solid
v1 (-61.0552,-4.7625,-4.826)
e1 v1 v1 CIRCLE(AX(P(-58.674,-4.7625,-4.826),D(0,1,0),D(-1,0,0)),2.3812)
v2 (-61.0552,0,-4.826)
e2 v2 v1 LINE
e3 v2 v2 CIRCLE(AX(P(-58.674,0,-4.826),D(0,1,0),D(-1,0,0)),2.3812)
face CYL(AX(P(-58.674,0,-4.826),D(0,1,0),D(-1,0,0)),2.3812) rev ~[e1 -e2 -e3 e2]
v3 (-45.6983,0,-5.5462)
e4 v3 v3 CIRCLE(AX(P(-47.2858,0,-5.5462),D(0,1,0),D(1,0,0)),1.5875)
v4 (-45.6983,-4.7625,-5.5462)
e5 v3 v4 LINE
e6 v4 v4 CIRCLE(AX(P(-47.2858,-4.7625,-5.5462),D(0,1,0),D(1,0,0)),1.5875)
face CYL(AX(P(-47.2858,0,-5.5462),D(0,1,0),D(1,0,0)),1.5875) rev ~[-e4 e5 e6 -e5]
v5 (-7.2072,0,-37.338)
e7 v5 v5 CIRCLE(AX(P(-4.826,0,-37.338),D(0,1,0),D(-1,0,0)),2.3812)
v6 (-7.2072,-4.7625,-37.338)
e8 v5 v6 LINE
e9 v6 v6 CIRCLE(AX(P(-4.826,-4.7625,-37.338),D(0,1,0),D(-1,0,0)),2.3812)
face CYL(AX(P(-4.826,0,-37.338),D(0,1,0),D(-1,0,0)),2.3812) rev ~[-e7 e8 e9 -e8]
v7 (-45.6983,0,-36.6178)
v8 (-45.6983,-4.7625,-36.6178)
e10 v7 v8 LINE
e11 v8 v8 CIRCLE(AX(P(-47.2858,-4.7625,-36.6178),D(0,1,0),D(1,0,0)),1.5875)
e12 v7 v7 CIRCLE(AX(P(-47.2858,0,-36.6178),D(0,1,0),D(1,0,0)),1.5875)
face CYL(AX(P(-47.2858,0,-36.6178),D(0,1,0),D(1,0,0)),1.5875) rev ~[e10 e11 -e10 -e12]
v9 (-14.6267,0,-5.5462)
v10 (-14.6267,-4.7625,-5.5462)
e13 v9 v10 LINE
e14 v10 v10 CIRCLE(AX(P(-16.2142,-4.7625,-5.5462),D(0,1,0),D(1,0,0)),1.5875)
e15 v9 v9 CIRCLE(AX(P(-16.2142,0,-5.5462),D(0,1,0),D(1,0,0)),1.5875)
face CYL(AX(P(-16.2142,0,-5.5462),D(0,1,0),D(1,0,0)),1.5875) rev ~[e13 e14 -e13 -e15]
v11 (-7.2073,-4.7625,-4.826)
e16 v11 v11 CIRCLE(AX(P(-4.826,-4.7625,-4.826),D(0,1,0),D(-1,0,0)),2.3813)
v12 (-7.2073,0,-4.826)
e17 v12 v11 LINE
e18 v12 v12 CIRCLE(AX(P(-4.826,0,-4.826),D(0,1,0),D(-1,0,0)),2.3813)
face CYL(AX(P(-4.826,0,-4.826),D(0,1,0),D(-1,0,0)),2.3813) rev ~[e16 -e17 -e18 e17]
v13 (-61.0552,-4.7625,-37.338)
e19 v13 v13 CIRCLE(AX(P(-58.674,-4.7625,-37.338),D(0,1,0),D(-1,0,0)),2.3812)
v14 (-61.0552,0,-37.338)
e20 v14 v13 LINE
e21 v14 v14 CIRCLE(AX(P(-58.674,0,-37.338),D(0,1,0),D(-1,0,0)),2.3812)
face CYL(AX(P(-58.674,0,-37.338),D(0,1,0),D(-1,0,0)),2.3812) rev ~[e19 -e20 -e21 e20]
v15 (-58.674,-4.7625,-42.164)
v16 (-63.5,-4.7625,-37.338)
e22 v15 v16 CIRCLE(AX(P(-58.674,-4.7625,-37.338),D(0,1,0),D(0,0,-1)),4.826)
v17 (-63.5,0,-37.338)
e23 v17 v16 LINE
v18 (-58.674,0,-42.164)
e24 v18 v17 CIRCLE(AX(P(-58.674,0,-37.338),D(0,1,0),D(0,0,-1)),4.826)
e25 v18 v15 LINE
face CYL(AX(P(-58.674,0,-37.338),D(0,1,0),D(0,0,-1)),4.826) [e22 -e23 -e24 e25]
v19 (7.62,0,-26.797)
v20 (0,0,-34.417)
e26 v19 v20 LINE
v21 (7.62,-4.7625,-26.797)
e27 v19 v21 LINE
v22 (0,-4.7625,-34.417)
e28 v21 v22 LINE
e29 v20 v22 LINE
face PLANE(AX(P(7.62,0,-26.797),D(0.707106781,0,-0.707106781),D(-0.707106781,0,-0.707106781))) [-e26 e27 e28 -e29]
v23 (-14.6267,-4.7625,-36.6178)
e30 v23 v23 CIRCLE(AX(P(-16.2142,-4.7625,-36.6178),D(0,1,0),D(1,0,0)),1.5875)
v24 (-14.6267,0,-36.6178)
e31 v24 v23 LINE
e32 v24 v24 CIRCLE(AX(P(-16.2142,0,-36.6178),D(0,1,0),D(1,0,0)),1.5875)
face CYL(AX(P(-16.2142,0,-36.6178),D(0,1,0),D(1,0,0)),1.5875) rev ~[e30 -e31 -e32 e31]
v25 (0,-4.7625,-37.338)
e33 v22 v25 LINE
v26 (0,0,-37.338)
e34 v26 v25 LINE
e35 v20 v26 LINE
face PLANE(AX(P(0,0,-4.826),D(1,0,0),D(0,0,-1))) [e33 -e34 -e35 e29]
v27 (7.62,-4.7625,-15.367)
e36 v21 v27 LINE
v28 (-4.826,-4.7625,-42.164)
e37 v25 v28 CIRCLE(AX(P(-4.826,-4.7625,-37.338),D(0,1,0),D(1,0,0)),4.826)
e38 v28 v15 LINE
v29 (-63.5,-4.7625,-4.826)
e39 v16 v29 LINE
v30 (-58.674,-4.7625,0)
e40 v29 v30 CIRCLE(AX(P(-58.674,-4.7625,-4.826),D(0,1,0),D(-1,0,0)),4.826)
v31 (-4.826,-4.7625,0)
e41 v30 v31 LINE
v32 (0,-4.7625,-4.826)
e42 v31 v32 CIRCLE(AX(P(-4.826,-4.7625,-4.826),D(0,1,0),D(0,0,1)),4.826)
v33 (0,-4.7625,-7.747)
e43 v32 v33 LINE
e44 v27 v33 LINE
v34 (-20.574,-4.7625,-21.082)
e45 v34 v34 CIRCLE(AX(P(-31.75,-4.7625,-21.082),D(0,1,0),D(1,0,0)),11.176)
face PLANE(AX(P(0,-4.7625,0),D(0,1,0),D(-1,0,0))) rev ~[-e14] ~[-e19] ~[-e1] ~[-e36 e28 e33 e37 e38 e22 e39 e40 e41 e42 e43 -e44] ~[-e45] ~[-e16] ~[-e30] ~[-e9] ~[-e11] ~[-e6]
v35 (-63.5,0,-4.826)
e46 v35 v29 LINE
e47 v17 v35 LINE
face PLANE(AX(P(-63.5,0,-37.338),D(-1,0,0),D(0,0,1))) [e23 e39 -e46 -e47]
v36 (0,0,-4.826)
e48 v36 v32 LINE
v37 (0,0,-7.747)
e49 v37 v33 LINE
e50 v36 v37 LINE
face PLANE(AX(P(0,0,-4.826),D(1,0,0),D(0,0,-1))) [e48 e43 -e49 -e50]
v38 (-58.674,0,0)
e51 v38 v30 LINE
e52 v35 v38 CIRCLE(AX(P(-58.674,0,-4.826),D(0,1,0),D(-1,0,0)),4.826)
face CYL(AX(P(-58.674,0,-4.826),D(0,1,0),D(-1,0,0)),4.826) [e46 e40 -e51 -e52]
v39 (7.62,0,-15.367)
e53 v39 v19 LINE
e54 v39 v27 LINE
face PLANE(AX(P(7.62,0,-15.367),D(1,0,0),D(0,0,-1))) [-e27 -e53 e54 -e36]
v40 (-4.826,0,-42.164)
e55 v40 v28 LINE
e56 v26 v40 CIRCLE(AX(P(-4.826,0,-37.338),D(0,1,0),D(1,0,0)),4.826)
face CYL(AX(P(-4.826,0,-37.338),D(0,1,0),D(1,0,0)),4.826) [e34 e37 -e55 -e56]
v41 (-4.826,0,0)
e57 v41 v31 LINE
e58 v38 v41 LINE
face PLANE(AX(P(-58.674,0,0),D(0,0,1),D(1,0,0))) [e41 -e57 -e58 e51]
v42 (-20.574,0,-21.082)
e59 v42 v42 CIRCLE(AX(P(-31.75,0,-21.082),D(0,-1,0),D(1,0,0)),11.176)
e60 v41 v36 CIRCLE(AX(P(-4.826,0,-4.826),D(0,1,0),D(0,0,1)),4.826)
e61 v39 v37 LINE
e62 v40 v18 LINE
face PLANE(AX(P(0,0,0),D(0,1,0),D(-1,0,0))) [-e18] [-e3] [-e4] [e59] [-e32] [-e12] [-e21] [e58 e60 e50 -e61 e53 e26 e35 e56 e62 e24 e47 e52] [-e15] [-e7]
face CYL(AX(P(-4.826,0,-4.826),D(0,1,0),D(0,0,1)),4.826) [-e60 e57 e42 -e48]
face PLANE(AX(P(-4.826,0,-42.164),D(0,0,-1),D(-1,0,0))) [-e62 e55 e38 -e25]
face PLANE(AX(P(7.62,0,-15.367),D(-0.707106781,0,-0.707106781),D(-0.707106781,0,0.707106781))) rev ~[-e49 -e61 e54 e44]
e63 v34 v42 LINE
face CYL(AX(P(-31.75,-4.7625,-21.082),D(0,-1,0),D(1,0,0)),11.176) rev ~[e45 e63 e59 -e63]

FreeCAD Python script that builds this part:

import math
import FreeCAD as App
import Part
import Sketcher
from FreeCAD import Vector
Q = App.Units.Quantity

doc = App.newDocument("Part")
body = doc.addObject("PartDesign::Body", "Body")

# Sketch on XZ plane
sketch1 = body.newObject("Sketcher::SketchObject", "Sketch")
sketch1.AttachmentSupport = (doc.getObject("XZ_Plane"), [""])
sketch1.MapMode = "FlatFace"
sketch1.addGeometry(Part.LineSegment(Vector(-58.674, 0, 0), Vector(-4.826, 0, 0)), False)
sketch1.addGeometry(Part.ArcOfCircle(Part.Circle(Vector(-4.826, -4.826, 0), Vector(0, 0, 1), 4.826), math.radians(0), math.radians(90)), False)
sketch1.addGeometry(Part.LineSegment(Vector(0, -4.826, 0), Vector(0, -37.338, 0)), False)
sketch1.addGeometry(Part.ArcOfCircle(Part.Circle(Vector(-4.826, -37.338, 0), Vector(0, 0, 1), 4.826), math.radians(-90), math.radians(0)), False)
sketch1.addGeometry(Part.LineSegment(Vector(-4.826, -42.164, 0), Vector(-58.674, -42.164, 0)), False)
sketch1.addGeometry(Part.ArcOfCircle(Part.Circle(Vector(-58.674, -37.338, 0), Vector(0, 0, 1), 4.826), math.radians(180), math.radians(270)), False)
sketch1.addGeometry(Part.LineSegment(Vector(-63.5, -37.338, 0), Vector(-63.5, -4.826, 0)), False)
sketch1.addGeometry(Part.ArcOfCircle(Part.Circle(Vector(-58.674, -4.826, 0), Vector(0, 0, 1), 4.826), math.radians(90), math.radians(180)), False)
sketch1.addGeometry(Part.Circle(Vector(-4.826, -4.826, 0), Vector(0, 0, 1), 2.3813), False)
sketch1.addGeometry(Part.Circle(Vector(-58.674, -4.826, 0), Vector(0, 0, 1), 2.3812), False)
sketch1.addGeometry(Part.Circle(Vector(-58.674, -37.338, 0), Vector(0, 0, 1), 2.3812), False)
sketch1.addGeometry(Part.Circle(Vector(-4.826, -37.338, 0), Vector(0, 0, 1), 2.3812), False)
sketch1.addConstraint(Sketcher.Constraint("Tangent", 0, 2, 1, 2))
sketch1.addConstraint(Sketcher.Constraint("Tangent", 1, 1, 2, 1))
sketch1.addConstraint(Sketcher.Constraint("Tangent", 2, 2, 3, 2))
sketch1.addConstraint(Sketcher.Constraint("Tangent", 3, 1, 4, 1))
sketch1.addConstraint(Sketcher.Constraint("Tangent", 4, 2, 5, 2))
sketch1.addConstraint(Sketcher.Constraint("Tangent", 5, 1, 6, 1))
sketch1.addConstraint(Sketcher.Constraint("Tangent", 6, 2, 7, 2))
sketch1.addConstraint(Sketcher.Constraint("Tangent", 7, 1, 0, 1))
sketch1.addConstraint(Sketcher.Constraint("Horizontal", 0))
sketch1.addConstraint(Sketcher.Constraint("Vertical", 2))
sketch1.addConstraint(Sketcher.Constraint("Horizontal", 4))
sketch1.addConstraint(Sketcher.Constraint("Vertical", 6))
sketch1.addConstraint(Sketcher.Constraint("Coincident", 8, 3, 1, 3))
sketch1.addConstraint(Sketcher.Constraint("Coincident", 9, 3, 7, 3))
sketch1.addConstraint(Sketcher.Constraint("Coincident", 10, 3, 5, 3))
sketch1.addConstraint(Sketcher.Constraint("Coincident", 11, 3, 3, 3))
sketch1.addConstraint(Sketcher.Constraint("Equal", 1, 3))
sketch1.addConstraint(Sketcher.Constraint("Equal", 3, 5))
sketch1.addConstraint(Sketcher.Constraint("Equal", 5, 7))
sketch1.addConstraint(Sketcher.Constraint("Equal", 8, 9))
sketch1.addConstraint(Sketcher.Constraint("Equal", 9, 10))
sketch1.addConstraint(Sketcher.Constraint("Equal", 10, 11))
sketch1.addConstraint(Sketcher.Constraint("PointOnObject", 0, 2, -1))
sketch1.addConstraint(Sketcher.Constraint("PointOnObject", 1, 1, -2))
sketch1.addConstraint(Sketcher.Constraint("Radius", 1, Q("0.19 in")))
sketch1.addConstraint(Sketcher.Constraint("Diameter", 8, Q("0.1875 in")))
sketch1.addConstraint(Sketcher.Constraint("DistanceX", 5, 1, -1, 1, Q("2.5 in")))
sketch1.addConstraint(Sketcher.Constraint("DistanceY", 3, 1, -1, 1, Q("1.66 in")))
pad1 = body.newObject("PartDesign::Pad", "Pad")
pad1.Profile = sketch1
pad1.Length = Q("0.1875 in")

# Sketch on XZ plane
sketch2 = body.newObject("Sketcher::SketchObject", "Sketch001")
sketch2.AttachmentSupport = (doc.getObject("XZ_Plane"), [""])
sketch2.MapMode = "FlatFace"
sketch2.AttachmentOffset = App.Placement(Vector(0, 0, 0.1875 * 25.4), App.Rotation())
sketch2.addGeometry(Part.Circle(Vector(-31.75, -21.082, 0), Vector(0, 0, 1), 11.176), False)
sketch2.addGeometry(Part.Circle(Vector(-16.2142, -36.6178, 0), Vector(0, 0, 1), 1.27), False)
sketch2.addGeometry(Part.Circle(Vector(-47.2858, -36.6178, 0), Vector(0, 0, 1), 1.27), False)
sketch2.addGeometry(Part.Circle(Vector(-47.2858, -5.5462, 0), Vector(0, 0, 1), 1.27), False)
sketch2.addGeometry(Part.Circle(Vector(-16.2142, -5.5462, 0), Vector(0, 0, 1), 1.27), False)
sketch2.addConstraint(Sketcher.Constraint("Equal", 1, 2))
sketch2.addConstraint(Sketcher.Constraint("Equal", 2, 3))
sketch2.addConstraint(Sketcher.Constraint("Equal", 3, 4))
sketch2.addConstraint(Sketcher.Constraint("Horizontal", 1, 3, 2, 3))
sketch2.addConstraint(Sketcher.Constraint("Horizontal", 3, 3, 4, 3))
sketch2.addConstraint(Sketcher.Constraint("Vertical", 2, 3, 3, 3))
sketch2.addConstraint(Sketcher.Constraint("Vertical", 1, 3, 4, 3))
sketch2.addConstraint(Sketcher.Constraint("Diameter", 1, Q("0.1 in")))
sketch2.addConstraint(Sketcher.Constraint("Diameter", 0, Q("0.88 in")))
sketch2.addConstraint(Sketcher.Constraint("DistanceX", 0, 3, -1, 1, Q("1.25 in")))
sketch2.addConstraint(Sketcher.Constraint("DistanceY", 0, 3, -1, 1, Q("0.83 in")))
sketch2.addConstraint(Sketcher.Constraint("DistanceX", 2, 3, 1, 3, Q("1.2233 in")))
sketch2.addConstraint(Sketcher.Constraint("DistanceY", 2, 3, 3, 3, Q("1.2233 in")))
sketch2.addConstraint(Sketcher.Constraint("DistanceX", 1, 3, -1, 1, Q("16.2142 mm")))
sketch2.addConstraint(Sketcher.Constraint("DistanceY", 1, 3, -1, 1, Q("36.6178 mm")))
pocket1 = body.newObject("PartDesign::Pocket", "Pocket")
pocket1.Profile = sketch2
pocket1.Length = Q("0.865 in")

# Sketch on XZ plane
sketch3 = body.newObject("Sketcher::SketchObject", "Sketch002")
sketch3.AttachmentSupport = (doc.getObject("XZ_Plane"), [""])
sketch3.MapMode = "FlatFace"
sketch3.addGeometry(Part.LineSegment(Vector(0, -15.367, 0), Vector(0, -7.747, 0)), False)
sketch3.addGeometry(Part.LineSegment(Vector(0, -7.747, 0), Vector(7.62, -15.367, 0)), False)
sketch3.addGeometry(Part.LineSegment(Vector(7.62, -15.367, 0), Vector(0, -15.367, 0)), False)
sketch3.addGeometry(Part.LineSegment(Vector(0, -26.797, 0), Vector(7.62, -26.797, 0)), False)
sketch3.addGeometry(Part.LineSegment(Vector(7.62, -26.797, 0), Vector(0, -34.417, 0)), False)
sketch3.addGeometry(Part.LineSegment(Vector(0, -34.417, 0), Vector(0, -26.797, 0)), False)
sketch3.addConstraint(Sketcher.Constraint("Coincident", 0, 2, 1, 1))
sketch3.addConstraint(Sketcher.Constraint("Coincident", 1, 2, 2, 1))
sketch3.addConstraint(Sketcher.Constraint("Coincident", 2, 2, 0, 1))
sketch3.addConstraint(Sketcher.Constraint("Coincident", 3, 2, 4, 1))
sketch3.addConstraint(Sketcher.Constraint("Coincident", 4, 2, 5, 1))
sketch3.addConstraint(Sketcher.Constraint("Coincident", 5, 2, 3, 1))
sketch3.addConstraint(Sketcher.Constraint("Vertical", 0))
sketch3.addConstraint(Sketcher.Constraint("Horizontal", 2))
sketch3.addConstraint(Sketcher.Constraint("Horizontal", 3))
sketch3.addConstraint(Sketcher.Constraint("Vertical", 5))
sketch3.addConstraint(Sketcher.Constraint("PointOnObject", 0, 2, -2))
sketch3.addConstraint(Sketcher.Constraint("PointOnObject", 4, 2, -2))
sketch3.addConstraint(Sketcher.Constraint("Perpendicular", 1, 4))
sketch3.addConstraint(Sketcher.Constraint("Vertical", 1, 2, 3, 2))
sketch3.addConstraint(Sketcher.Constraint("Equal", 3, 0))
sketch3.addConstraint(Sketcher.Constraint("DistanceX", 2, 2, 2, 1, Q("0.3 in")))
sketch3.addConstraint(Sketcher.Constraint("DistanceY", 3, 2, 1, 2, Q("0.45 in")))
sketch3.addConstraint(Sketcher.Constraint("DistanceY", 0, 2, -1, 1, Q("0.305 in")))
pad2 = body.newObject("PartDesign::Pad", "Pad001")
pad2.Profile = sketch3
pad2.Length = Q("0.1875 in")

# Sketch on XZ plane
sketch4 = body.newObject("Sketcher::SketchObject", "Sketch003")
sketch4.AttachmentSupport = (doc.getObject("XZ_Plane"), [""])
sketch4.MapMode = "FlatFace"
sketch4.addGeometry(Part.LineSegment(Vector(-6.35, -15.367, 0), Vector(7.62, -15.367, 0)), False)
sketch4.addGeometry(Part.LineSegment(Vector(7.62, -15.367, 0), Vector(7.62, -26.797, 0)), False)
sketch4.addGeometry(Part.LineSegment(Vector(7.62, -26.797, 0), Vector(-6.35, -26.797, 0)), False)
sketch4.addGeometry(Part.LineSegment(Vector(-6.35, -26.797, 0), Vector(-6.35, -15.367, 0)), False)
sketch4.addConstraint(Sketcher.Constraint("Coincident", 0, 2, 1, 1))
sketch4.addConstraint(Sketcher.Constraint("Coincident", 1, 2, 2, 1))
sketch4.addConstraint(Sketcher.Constraint("Coincident", 2, 2, 3, 1))
sketch4.addConstraint(Sketcher.Constraint("Coincident", 3, 2, 0, 1))
sketch4.addConstraint(Sketcher.Constraint("Horizontal", 0))
sketch4.addConstraint(Sketcher.Constraint("Vertical", 1))
sketch4.addConstraint(Sketcher.Constraint("Horizontal", 2))
sketch4.addConstraint(Sketcher.Constraint("Vertical", 3))
sketch4.addConstraint(Sketcher.Constraint("DistanceX", -1, 1, 0, 2, Q("0.3 in")))
sketch4.addConstraint(Sketcher.Constraint("DistanceX", 2, 2, -1, 1, Q("0.25 in")))
sketch4.addConstraint(Sketcher.Constraint("DistanceY", 1, 2, 1, 1, Q("0.45 in")))
sketch4.addConstraint(Sketcher.Constraint("DistanceY", 0, 2, -1, 1, Q("0.605 in")))
pad3 = body.newObject("PartDesign::Pad", "Pad002")
pad3.Profile = sketch4
pad3.Length = Q("0.375 in")

# Sketch on YZ plane
sketch5 = body.newObject("Sketcher::SketchObject", "Sketch004")
sketch5.AttachmentSupport = (doc.getObject("YZ_Plane"), [""])
sketch5.MapMode = "FlatFace"
sketch5.AttachmentOffset = App.Placement(Vector(0, 0, 0.3 * 25.4), App.Rotation())
sketch5.addGeometry(Part.Circle(Vector(-12.3825, -21.082, 0), Vector(0, 0, 1), 5.715), False)
sketch5.addConstraint(Sketcher.Constraint("Diameter", 0, Q("0.45 in")))
sketch5.addConstraint(Sketcher.Constraint("DistanceY", 0, 3, -1, 1, Q("0.83 in")))
sketch5.addConstraint(Sketcher.Constraint("DistanceX", 0, 3, -1, 1, Q("0.4875 in")))
pocket2 = body.newObject("PartDesign::Pocket", "Pocket001")
pocket2.Profile = sketch5
pocket2.Length = Q("0.3915 in")

# Sketch on XZ plane
sketch6 = body.newObject("Sketcher::SketchObject", "Sketch005")
sketch6.AttachmentSupport = (doc.getObject("XZ_Plane"), [""])
sketch6.MapMode = "FlatFace"
sketch6.addGeometry(Part.Circle(Vector(-16.2142, -5.5462, 0), Vector(0, 0, 1), 1.5875), False)
sketch6.addGeometry(Part.Circle(Vector(-16.2142, -5.5462, 0), Vector(0, 0, 1), 1.27), False)
sketch6.addGeometry(Part.Circle(Vector(-47.2858, -5.5462, 0), Vector(0, 0, 1), 1.5875), False)
sketch6.addGeometry(Part.Circle(Vector(-47.2858, -5.5462, 0), Vector(0, 0, 1), 1.27), False)
sketch6.addGeometry(Part.Circle(Vector(-47.2858, -36.6178, 0), Vector(0, 0, 1), 1.5875), False)
sketch6.addGeometry(Part.Circle(Vector(-47.2858, -36.6178, 0), Vector(0, 0, 1), 1.27), False)
sketch6.addGeometry(Part.Circle(Vector(-16.2142, -36.6178, 0), Vector(0, 0, 1), 1.5875), False)
sketch6.addGeometry(Part.Circle(Vector(-16.2142, -36.6178, 0), Vector(0, 0, 1), 1.27), False)
sketch6.addConstraint(Sketcher.Constraint("Coincident", 1, 3, 0, 3))
sketch6.addConstraint(Sketcher.Constraint("Coincident", 3, 3, 2, 3))
sketch6.addConstraint(Sketcher.Constraint("Coincident", 5, 3, 4, 3))
sketch6.addConstraint(Sketcher.Constraint("Coincident", 7, 3, 6, 3))
sketch6.addConstraint(Sketcher.Constraint("Equal", 0, 2))
sketch6.addConstraint(Sketcher.Constraint("Equal", 1, 3))
sketch6.addConstraint(Sketcher.Constraint("Equal", 2, 4))
sketch6.addConstraint(Sketcher.Constraint("Equal", 3, 5))
sketch6.addConstraint(Sketcher.Constraint("Equal", 4, 6))
sketch6.addConstraint(Sketcher.Constraint("Equal", 5, 7))
sketch6.addConstraint(Sketcher.Constraint("Horizontal", 1, 3, 2, 3))
sketch6.addConstraint(Sketcher.Constraint("Horizontal", 5, 3, 6, 3))
sketch6.addConstraint(Sketcher.Constraint("Vertical", 3, 3, 4, 3))
sketch6.addConstraint(Sketcher.Constraint("Vertical", 1, 3, 6, 3))
sketch6.addConstraint(Sketcher.Constraint("Diameter", 0, Q("0.125 in")))
sketch6.addConstraint(Sketcher.Constraint("Diameter", 1, Q("0.1 in")))
sketch6.addConstraint(Sketcher.Constraint("DistanceX", 2, 3, 0, 3, Q("1.2233 in")))
sketch6.addConstraint(Sketcher.Constraint("DistanceY", 4, 3, 2, 3, Q("1.2233 in")))
sketch6.addConstraint(Sketcher.Constraint("DistanceX", 0, 3, -1, 1, Q("16.2142 mm")))
sketch6.addConstraint(Sketcher.Constraint("DistanceY", 0, 3, -1, 1, Q("5.5462 mm")))
pocket3 = body.newObject("PartDesign::Pocket", "Pocket002")
pocket3.Profile = sketch6
pocket3.Length = Q("0.1875 in")
pocket3.Reversed = True

# Sketch on YZ plane
sketch7 = body.newObject("Sketcher::SketchObject", "Sketch006")
sketch7.AttachmentSupport = (doc.getObject("YZ_Plane"), [""])
sketch7.MapMode = "FlatFace"
sketch7.AttachmentOffset = App.Placement(Vector(0, 0, -0.25 * 25.4), App.Rotation())
sketch7.addGeometry(Part.LineSegment(Vector(-4.7625, -15.367, 0), Vector(-4.7625, -26.797, 0)), False)
sketch7.addGeometry(Part.LineSegment(Vector(-4.7625, -26.797, 0), Vector(-9.525, -26.797, 0)), False)
sketch7.addGeometry(Part.LineSegment(Vector(-9.525, -26.797, 0), Vector(-9.525, -15.367, 0)), False)
sketch7.addGeometry(Part.LineSegment(Vector(-9.525, -15.367, 0), Vector(-4.7625, -15.367, 0)), False)
sketch7.addConstraint(Sketcher.Constraint("Coincident", 0, 2, 1, 1))
sketch7.addConstraint(Sketcher.Constraint("Coincident", 1, 2, 2, 1))
sketch7.addConstraint(Sketcher.Constraint("Coincident", 2, 2, 3, 1))
sketch7.addConstraint(Sketcher.Constraint("Coincident", 3, 2, 0, 1))
sketch7.addConstraint(Sketcher.Constraint("Vertical", 0))
sketch7.addConstraint(Sketcher.Constraint("Horizontal", 1))
sketch7.addConstraint(Sketcher.Constraint("Vertical", 2))
sketch7.addConstraint(Sketcher.Constraint("Horizontal", 3))
sketch7.addConstraint(Sketcher.Constraint("DistanceY", 0, 2, 0, 1, Q("0.45 in")))
sketch7.addConstraint(Sketcher.Constraint("DistanceX", 1, 2, 1, 1, Q("0.1875 in")))
sketch7.addConstraint(Sketcher.Constraint("DistanceX", 0, 2, -1, 1, Q("0.1875 in")))
sketch7.addConstraint(Sketcher.Constraint("DistanceY", 0, 2, -1, 1, Q("1.055 in")))
pocket4 = body.newObject("PartDesign::Pocket", "Pocket003")
pocket4.Profile = sketch7
pocket4.Length = Q("0.55 in")
pocket4.Reversed = True

doc.recompute()
